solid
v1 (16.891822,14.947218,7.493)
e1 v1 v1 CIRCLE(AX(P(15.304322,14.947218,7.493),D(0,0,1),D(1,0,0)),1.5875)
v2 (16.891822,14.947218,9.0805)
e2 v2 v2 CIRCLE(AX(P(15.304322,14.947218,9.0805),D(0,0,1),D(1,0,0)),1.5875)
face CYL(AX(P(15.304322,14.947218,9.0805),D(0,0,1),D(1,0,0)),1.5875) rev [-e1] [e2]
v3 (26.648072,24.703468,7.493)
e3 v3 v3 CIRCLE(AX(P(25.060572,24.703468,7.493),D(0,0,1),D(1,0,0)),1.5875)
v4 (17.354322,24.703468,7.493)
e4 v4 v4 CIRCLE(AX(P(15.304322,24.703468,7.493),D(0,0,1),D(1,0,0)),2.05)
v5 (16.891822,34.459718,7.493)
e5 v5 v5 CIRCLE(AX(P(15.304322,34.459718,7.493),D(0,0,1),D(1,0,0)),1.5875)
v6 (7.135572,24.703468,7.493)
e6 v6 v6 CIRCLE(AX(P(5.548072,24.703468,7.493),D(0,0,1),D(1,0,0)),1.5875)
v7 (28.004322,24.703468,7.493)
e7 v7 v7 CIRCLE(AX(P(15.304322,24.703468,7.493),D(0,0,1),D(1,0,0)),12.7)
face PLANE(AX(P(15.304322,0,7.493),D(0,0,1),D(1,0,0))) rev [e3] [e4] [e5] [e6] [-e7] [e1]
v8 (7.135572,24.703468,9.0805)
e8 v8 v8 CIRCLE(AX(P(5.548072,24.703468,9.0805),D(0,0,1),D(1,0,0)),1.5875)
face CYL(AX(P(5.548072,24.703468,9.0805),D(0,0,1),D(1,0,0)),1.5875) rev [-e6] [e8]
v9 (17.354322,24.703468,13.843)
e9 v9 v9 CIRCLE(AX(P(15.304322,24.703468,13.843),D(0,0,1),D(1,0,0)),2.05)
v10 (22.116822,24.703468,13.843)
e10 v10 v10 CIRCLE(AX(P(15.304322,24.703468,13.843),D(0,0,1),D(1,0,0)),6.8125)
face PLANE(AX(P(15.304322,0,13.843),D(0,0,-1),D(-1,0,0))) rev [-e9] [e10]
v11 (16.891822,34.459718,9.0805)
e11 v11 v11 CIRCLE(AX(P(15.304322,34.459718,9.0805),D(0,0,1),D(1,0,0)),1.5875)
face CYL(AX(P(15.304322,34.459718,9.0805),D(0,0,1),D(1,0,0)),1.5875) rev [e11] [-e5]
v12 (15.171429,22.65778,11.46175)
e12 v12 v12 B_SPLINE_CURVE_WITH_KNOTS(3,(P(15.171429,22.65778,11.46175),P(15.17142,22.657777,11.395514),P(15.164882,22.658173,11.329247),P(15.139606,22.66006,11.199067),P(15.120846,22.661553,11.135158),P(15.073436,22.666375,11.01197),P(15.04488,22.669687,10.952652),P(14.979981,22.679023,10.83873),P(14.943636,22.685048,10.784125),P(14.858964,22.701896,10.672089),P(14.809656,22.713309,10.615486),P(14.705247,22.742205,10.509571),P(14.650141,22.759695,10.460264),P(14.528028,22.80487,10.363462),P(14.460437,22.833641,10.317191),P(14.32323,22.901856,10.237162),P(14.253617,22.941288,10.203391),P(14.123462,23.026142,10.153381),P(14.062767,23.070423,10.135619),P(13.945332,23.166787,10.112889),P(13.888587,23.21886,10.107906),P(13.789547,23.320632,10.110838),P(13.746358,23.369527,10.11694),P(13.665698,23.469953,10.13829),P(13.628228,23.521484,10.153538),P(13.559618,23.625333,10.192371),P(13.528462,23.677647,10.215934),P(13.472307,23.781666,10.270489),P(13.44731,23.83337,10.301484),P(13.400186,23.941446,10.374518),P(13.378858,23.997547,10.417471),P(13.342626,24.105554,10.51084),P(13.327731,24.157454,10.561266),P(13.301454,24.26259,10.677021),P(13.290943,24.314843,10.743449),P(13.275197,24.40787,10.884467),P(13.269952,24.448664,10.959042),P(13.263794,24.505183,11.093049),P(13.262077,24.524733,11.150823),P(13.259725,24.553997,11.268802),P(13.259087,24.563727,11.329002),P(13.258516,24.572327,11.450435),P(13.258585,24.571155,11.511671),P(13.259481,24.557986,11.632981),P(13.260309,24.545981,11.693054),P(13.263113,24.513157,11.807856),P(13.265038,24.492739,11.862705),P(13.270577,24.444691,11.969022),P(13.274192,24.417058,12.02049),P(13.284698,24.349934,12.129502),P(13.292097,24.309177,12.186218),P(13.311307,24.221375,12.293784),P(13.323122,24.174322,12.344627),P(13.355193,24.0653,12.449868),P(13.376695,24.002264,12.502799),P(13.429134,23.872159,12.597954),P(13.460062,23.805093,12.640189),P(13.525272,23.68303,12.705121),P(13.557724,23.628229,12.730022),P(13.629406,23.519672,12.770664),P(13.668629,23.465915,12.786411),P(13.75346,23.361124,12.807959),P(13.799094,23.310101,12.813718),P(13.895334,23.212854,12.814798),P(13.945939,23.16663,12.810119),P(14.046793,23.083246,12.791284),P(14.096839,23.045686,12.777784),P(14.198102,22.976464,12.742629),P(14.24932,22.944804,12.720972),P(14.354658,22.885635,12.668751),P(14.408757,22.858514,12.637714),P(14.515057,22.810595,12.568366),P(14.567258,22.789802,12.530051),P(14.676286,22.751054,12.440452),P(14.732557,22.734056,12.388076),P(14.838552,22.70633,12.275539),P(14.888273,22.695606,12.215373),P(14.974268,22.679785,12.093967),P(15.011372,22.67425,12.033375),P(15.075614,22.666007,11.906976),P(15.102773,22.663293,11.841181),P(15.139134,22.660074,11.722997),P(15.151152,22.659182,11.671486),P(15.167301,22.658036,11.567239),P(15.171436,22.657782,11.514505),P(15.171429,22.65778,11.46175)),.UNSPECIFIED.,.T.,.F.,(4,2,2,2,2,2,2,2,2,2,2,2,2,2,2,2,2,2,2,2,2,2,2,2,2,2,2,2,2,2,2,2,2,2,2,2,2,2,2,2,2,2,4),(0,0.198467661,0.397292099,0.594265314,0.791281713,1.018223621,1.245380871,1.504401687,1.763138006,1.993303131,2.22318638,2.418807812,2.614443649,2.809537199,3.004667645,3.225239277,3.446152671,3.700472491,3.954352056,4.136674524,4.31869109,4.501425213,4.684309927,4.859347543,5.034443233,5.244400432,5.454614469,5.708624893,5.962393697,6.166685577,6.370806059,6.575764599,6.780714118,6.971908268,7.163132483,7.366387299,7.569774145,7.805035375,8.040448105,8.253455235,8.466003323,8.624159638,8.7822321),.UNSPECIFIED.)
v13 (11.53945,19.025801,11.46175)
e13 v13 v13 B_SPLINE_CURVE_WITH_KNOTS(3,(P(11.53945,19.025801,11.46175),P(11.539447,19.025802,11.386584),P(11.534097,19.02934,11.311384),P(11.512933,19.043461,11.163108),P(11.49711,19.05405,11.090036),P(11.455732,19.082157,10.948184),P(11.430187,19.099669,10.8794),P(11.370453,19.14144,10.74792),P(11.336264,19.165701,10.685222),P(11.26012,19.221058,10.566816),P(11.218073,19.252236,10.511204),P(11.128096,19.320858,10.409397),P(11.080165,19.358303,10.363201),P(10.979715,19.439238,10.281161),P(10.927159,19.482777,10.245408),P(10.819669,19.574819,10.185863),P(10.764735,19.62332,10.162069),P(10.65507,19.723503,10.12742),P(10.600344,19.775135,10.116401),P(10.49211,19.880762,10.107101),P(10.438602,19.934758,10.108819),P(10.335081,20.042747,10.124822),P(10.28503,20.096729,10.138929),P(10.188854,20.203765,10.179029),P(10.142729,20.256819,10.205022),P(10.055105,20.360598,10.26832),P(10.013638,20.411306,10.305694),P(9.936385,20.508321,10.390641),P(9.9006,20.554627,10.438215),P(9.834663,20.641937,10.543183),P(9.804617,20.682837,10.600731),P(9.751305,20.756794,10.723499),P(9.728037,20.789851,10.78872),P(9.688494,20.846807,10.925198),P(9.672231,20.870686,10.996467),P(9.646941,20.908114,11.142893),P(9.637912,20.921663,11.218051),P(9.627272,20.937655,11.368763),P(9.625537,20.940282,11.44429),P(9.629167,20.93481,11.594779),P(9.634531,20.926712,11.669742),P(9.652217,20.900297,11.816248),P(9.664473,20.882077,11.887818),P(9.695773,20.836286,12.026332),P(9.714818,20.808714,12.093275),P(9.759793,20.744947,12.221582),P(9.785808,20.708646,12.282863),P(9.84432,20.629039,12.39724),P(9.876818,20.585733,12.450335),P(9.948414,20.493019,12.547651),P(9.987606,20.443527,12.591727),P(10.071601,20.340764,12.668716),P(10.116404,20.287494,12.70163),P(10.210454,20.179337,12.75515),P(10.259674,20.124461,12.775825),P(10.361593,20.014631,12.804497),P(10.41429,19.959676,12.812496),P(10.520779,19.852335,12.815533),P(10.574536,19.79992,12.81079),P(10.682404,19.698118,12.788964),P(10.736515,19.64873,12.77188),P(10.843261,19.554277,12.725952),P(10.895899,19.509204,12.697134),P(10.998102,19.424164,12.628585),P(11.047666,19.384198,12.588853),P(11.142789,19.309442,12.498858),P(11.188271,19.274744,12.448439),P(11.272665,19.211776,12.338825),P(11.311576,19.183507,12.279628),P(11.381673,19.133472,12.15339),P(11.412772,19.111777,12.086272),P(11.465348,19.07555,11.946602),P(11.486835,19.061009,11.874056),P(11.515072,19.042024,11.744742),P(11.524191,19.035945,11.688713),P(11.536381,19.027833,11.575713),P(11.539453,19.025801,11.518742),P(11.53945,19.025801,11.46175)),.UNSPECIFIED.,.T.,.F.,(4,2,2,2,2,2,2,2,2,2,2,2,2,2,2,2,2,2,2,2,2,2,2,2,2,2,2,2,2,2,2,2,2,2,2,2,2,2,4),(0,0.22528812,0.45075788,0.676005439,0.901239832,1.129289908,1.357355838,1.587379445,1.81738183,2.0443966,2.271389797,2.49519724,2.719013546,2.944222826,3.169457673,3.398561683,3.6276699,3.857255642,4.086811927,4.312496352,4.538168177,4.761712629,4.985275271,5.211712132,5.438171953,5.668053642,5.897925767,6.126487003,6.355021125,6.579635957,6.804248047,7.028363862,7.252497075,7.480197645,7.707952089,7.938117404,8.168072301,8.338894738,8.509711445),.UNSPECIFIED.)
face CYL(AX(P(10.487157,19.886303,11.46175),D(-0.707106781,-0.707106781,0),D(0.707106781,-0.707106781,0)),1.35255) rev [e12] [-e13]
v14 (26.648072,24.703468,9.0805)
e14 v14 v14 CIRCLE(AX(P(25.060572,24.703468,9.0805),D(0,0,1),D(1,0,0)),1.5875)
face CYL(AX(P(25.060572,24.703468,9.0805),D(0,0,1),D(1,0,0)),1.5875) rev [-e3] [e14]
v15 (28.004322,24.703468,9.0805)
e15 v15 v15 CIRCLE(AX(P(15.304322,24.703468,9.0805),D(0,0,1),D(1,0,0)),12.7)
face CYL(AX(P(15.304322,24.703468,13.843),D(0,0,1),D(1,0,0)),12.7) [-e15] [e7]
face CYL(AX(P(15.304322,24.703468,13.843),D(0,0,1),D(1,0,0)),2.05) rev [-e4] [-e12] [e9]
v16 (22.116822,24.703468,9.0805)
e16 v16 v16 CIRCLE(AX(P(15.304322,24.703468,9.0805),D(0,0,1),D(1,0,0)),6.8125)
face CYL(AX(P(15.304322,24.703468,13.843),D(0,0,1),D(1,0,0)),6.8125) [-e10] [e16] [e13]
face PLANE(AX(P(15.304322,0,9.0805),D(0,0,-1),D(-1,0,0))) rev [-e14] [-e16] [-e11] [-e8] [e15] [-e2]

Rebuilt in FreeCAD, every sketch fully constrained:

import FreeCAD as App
import Part
import Sketcher
from FreeCAD import Vector
Q = App.Units.Quantity


def add_polygon(sketch, points):
    """Adds a closed chain of lines whose ends are joined by coincident constraints."""
    first, n = sketch.GeometryCount, len(points)
    for a, b in zip(points, points[1:] + points[:1]):
        sketch.addGeometry(Part.LineSegment(App.Vector(*a, 0), App.Vector(*b, 0)), False)
    for i in range(n):
        sketch.addConstraint(Sketcher.Constraint("Coincident", first + i, 2, first + (i + 1) % n, 1))

doc = App.newDocument("Part")
body = doc.addObject("PartDesign::Body", "Body")

# Sketch on YZ plane
sketch1 = body.newObject("Sketcher::SketchObject", "Sketch")
sketch1.AttachmentSupport = (doc.getObject("YZ_Plane"), [""])
sketch1.MapMode = "FlatFace"
sketch1.AttachmentOffset = App.Placement(Vector(0, 0, 15.304322), App.Rotation())
add_polygon(sketch1, [(12.003468, 7.493), (22.653468, 7.493), (22.653468, 13.843), (17.890968, 13.843), (17.890968, 9.0805), (12.003468, 9.0805)])  # lines 0-5
sketch1.addGeometry(Part.LineSegment(Vector(24.703468, 13.843, 0), Vector(24.703468, 7.493, 0)), True)  # axis
sketch1.addConstraint([
    Sketcher.Constraint("Horizontal", 0),
    Sketcher.Constraint("Vertical", 1),
    Sketcher.Constraint("Horizontal", 2),
    Sketcher.Constraint("Vertical", 3),
    Sketcher.Constraint("Horizontal", 4),
    Sketcher.Constraint("Vertical", 5),
    Sketcher.Constraint("Vertical", 6),
    Sketcher.Constraint("Horizontal", 2, 2, 6, 1),
    Sketcher.Constraint("Horizontal", 5, 2, 6, 2),
    Sketcher.Constraint("Equal", 2, 3),
    Sketcher.Constraint("DistanceY", 1, 1, 1, 2, Q("0.25 in")),
    Sketcher.Constraint("DistanceX", 4, 2, 6, 1, Q("0.5 in")),
    Sketcher.Constraint("DistanceX", 2, 2, 2, 1, Q("0.1875 in")),
    Sketcher.Constraint("DistanceY", -1, 1, 0, 2, Q("0.295 in")),
    Sketcher.Constraint("DistanceX", 0, 1, 0, 2, Q("10.65 mm")),
    Sketcher.Constraint("DistanceX", -1, 1, 0, 2, Q("22.653468 mm")),
])
revolution = body.newObject("PartDesign::Revolution", "Revolution")
revolution.Profile = sketch1
revolution.ReferenceAxis = (sketch1, ["Axis0"])
revolution.Angle = 360

# Sketch on XY plane
sketch2 = body.newObject("Sketcher::SketchObject", "Sketch001")
sketch2.AttachmentSupport = (doc.getObject("XY_Plane"), [""])
sketch2.MapMode = "FlatFace"
sketch2.AttachmentOffset = App.Placement(Vector(0, 0, 0.3575 * 25.4), App.Rotation())
sketch2.addGeometry([
    Part.Circle(Vector(15.304322, 14.947218, 0), Vector(0, 0, 1), 1.5875),
    Part.Circle(Vector(25.060572, 24.703468, 0), Vector(0, 0, 1), 1.5875),
    Part.Circle(Vector(15.304322, 34.459718, 0), Vector(0, 0, 1), 1.5875),
    Part.Circle(Vector(5.548072, 24.703468, 0), Vector(0, 0, 1), 1.5875),
], False)
sketch2.addConstraint([
    Sketcher.Constraint("Equal", 0, 1),
    Sketcher.Constraint("Equal", 1, 2),
    Sketcher.Constraint("Equal", 2, 3),
    Sketcher.Constraint("Horizontal", 1, 3, 3, 3),
    Sketcher.Constraint("Vertical", 0, 3, 2, 3),
    Sketcher.Constraint("Diameter", 0, Q("0.125 in")),
    Sketcher.Constraint("DistanceY", 0, 3, 2, 3, Q("19.5125 mm")),
    Sketcher.Constraint("DistanceX", 3, 3, 1, 3, Q("19.5125 mm")),
    Sketcher.Constraint("DistanceX", 0, 3, 1, 3, Q("9.75625 mm")),
    Sketcher.Constraint("DistanceY", 0, 3, 1, 3, Q("9.75625 mm")),
    Sketcher.Constraint("DistanceX", -1, 1, 0, 3, Q("15.304322 mm")),
    Sketcher.Constraint("DistanceY", -1, 1, 0, 3, Q("14.947218 mm")),
])
doc.recompute()
hole = body.newObject("PartDesign::Hole", "Hole")
hole.Profile = sketch2
hole.ThreadType = "None"
hole.Diameter = Q("0.125 in")
hole.DepthType = "ThroughAll"

# Sketch on an angled plane
sketch3 = body.newObject("Sketcher::SketchObject", "Sketch002")
sketch3.Placement = App.Placement(Vector(15.18673, 15.18673, 0), App.Rotation(Vector(0, 0, 1), Vector(-0.707106781, 0.707106781, 0), Vector(-0.707106781, -0.707106781, 0), "ZXY"))
sketch3.addGeometry(Part.Circle(Vector(11.46175, 6.6462, 0), Vector(0, 0, 1), 1.35255), False)
sketch3.addConstraint([
    Sketcher.Constraint("Diameter", 0, Q("0.1065 in")),
    Sketcher.Constraint("DistanceY", -1, 1, 0, 3, Q("6.6462 mm")),
    Sketcher.Constraint("DistanceX", -1, 1, 0, 3, Q("11.46175 mm")),
])
doc.recompute()
hole2 = body.newObject("PartDesign::Hole", "Hole001")
hole2.Profile = sketch3
hole2.ThreadType = "None"
hole2.Diameter = Q("0.1065 in")
hole2.DepthType = "Dimension"
hole2.Depth = Q("0.27 in")
hole2.DrillPoint = "Angled"
hole2.DrillPointAngle = 118

doc.recompute()
